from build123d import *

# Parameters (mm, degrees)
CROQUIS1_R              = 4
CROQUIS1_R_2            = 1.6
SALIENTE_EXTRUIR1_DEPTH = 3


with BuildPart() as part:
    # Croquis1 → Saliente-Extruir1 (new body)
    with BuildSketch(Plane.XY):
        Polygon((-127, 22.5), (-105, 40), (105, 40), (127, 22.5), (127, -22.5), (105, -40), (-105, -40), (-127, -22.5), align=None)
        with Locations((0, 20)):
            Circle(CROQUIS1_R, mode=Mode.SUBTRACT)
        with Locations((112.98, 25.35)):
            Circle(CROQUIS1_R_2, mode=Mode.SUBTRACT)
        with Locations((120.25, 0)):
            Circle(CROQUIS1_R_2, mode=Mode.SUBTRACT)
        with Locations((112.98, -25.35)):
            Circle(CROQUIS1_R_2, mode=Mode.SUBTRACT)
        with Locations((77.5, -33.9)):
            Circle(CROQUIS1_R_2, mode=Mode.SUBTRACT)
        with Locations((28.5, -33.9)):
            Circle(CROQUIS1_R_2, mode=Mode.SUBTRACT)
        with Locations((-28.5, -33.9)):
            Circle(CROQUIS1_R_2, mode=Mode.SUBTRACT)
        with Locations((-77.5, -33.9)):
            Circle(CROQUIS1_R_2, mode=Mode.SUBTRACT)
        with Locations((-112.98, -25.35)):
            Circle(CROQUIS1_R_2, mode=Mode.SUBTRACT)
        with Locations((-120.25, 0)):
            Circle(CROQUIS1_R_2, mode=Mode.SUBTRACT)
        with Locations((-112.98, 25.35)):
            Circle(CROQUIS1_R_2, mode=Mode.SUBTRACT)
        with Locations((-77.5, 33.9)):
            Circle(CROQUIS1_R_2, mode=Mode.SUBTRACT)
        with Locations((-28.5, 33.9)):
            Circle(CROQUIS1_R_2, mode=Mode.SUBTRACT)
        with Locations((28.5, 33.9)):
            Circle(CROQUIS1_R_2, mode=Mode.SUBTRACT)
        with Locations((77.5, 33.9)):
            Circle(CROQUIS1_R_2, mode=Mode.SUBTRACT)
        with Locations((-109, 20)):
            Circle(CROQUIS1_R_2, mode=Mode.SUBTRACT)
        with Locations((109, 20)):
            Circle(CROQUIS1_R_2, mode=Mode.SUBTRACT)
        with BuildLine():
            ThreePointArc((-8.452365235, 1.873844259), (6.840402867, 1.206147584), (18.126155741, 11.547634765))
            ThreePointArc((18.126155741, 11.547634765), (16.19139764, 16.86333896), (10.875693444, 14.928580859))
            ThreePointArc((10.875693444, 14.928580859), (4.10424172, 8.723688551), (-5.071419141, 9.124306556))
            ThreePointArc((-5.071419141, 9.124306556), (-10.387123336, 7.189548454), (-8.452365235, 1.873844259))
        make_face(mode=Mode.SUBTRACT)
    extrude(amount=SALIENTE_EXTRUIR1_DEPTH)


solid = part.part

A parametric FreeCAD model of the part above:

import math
import FreeCAD as App
import Part
import Sketcher

V = App.Vector
Q = App.Units.Quantity

doc = App.newDocument("Part")
body = doc.addObject("PartDesign::Body", "Body")

# Sketch on XY plane
sketch1 = body.newObject("Sketcher::SketchObject", "Sketch")
sketch1.AttachmentSupport = (doc.getObject("XY_Plane"), [""])
sketch1.MapMode = "FlatFace"
sketch1.addGeometry([
    Part.LineSegment(V(-105, 40, 0), V(-127, 22.5, 0)),  # 0
    Part.LineSegment(V(-127, 22.5, 0), V(-127, -22.5, 0)),  # 1
    Part.LineSegment(V(-127, -22.5, 0), V(-105, -40, 0)),  # 2
    Part.LineSegment(V(-105, -40, 0), V(105, -40, 0)),  # 3
    Part.LineSegment(V(105, -40, 0), V(127, -22.5, 0)),  # 4
    Part.LineSegment(V(127, -22.5, 0), V(127, 22.5, 0)),  # 5
    Part.LineSegment(V(127, 22.5, 0), V(105, 40, 0)),  # 6
    Part.LineSegment(V(105, 40, 0), V(-105, 40, 0)),  # 7
    Part.Circle(V(77.5, -33.9, 0), V(0, 0, 1), 1.6),  # 8
    Part.Circle(V(113, -25.4, 0), V(0, 0, 1), 1.6),  # 9
    Part.Circle(V(28.5, -33.9, 0), V(0, 0, 1), 1.6),  # 10
    Part.Circle(V(-28.5, -33.9, 0), V(0, 0, 1), 1.6),  # 11
    Part.Circle(V(-77.5, -33.9, 0), V(0, 0, 1), 1.6),  # 12
    Part.Circle(V(-113, -25.4, 0), V(0, 0, 1), 1.6),  # 13
    Part.Circle(V(120.2, 0, 0), V(0, 0, 1), 1.6),  # 14
    Part.ArcOfCircle(Part.Circle(V(-6.8, 5.5, 0), V(0, 0, 1), 4), math.radians(65), math.radians(245)),  # 15
    Part.ArcOfCircle(Part.Circle(V(0, 20, 0), V(0, 0, 1), 12), math.radians(-115), math.radians(-25)),  # 16
    Part.ArcOfCircle(Part.Circle(V(14.5, 13.2, 0), V(0, 0, 1), 4), math.radians(-25), math.radians(155)),  # 17
    Part.ArcOfCircle(Part.Circle(V(0, 20, 0), V(0, 0, 1), 20), math.radians(-115), math.radians(-25)),  # 18
    Part.Circle(V(109, 20, 0), V(0, 0, 1), 1.6),  # 19
    Part.Circle(V(113, 25.4, 0), V(0, 0, 1), 1.6),  # 20
    Part.Circle(V(77.5, 33.9, 0), V(0, 0, 1), 1.6),  # 21
    Part.Circle(V(0, 20, 0), V(0, 0, 1), 4),  # 22
    Part.Circle(V(28.5, 33.9, 0), V(0, 0, 1), 1.6),  # 23
    Part.Circle(V(-120.2, 0, 0), V(0, 0, 1), 1.6),  # 24
    Part.Circle(V(-28.5, 33.9, 0), V(0, 0, 1), 1.6),  # 25
    Part.Circle(V(-109, 20, 0), V(0, 0, 1), 1.6),  # 26
    Part.Circle(V(-113, 25.4, 0), V(0, 0, 1), 1.6),  # 27
    Part.Circle(V(-77.5, 33.9, 0), V(0, 0, 1), 1.6),  # 28
], False)
sketch1.addConstraint([
    Sketcher.Constraint("Coincident", 0, 2, 1, 1),
    Sketcher.Constraint("Coincident", 1, 2, 2, 1),
    Sketcher.Constraint("Coincident", 2, 2, 3, 1),
    Sketcher.Constraint("Coincident", 3, 2, 4, 1),
    Sketcher.Constraint("Coincident", 4, 2, 5, 1),
    Sketcher.Constraint("Coincident", 5, 2, 6, 1),
    Sketcher.Constraint("Coincident", 6, 2, 7, 1),
    Sketcher.Constraint("Coincident", 7, 2, 0, 1),
    Sketcher.Constraint("Tangent", 15, 1, 16, 1),
    Sketcher.Constraint("Tangent", 16, 2, 17, 2),
    Sketcher.Constraint("Tangent", 17, 1, 18, 2),
    Sketcher.Constraint("Tangent", 18, 1, 15, 2),
    Sketcher.Constraint("Vertical", 1),
    Sketcher.Constraint("Horizontal", 3),
    Sketcher.Constraint("Vertical", 5),
    Sketcher.Constraint("Horizontal", 7),
    Sketcher.Constraint("Coincident", 18, 3, 16, 3),
    Sketcher.Constraint("Coincident", 22, 3, 16, 3),
    Sketcher.Constraint("Equal", 8, 9),
    Sketcher.Constraint("Equal", 9, 10),
    Sketcher.Constraint("Equal", 10, 11),
    Sketcher.Constraint("Equal", 11, 12),
    Sketcher.Constraint("Equal", 12, 13),
    Sketcher.Constraint("Equal", 13, 14),
    Sketcher.Constraint("Equal", 14, 19),
    Sketcher.Constraint("Equal", 19, 20),
    Sketcher.Constraint("Equal", 20, 21),
    Sketcher.Constraint("Equal", 17, 22),
    Sketcher.Constraint("Equal", 21, 23),
    Sketcher.Constraint("Equal", 23, 24),
    Sketcher.Constraint("Equal", 24, 25),
    Sketcher.Constraint("Equal", 25, 26),
    Sketcher.Constraint("Equal", 26, 27),
    Sketcher.Constraint("Equal", 27, 28),
    Sketcher.Constraint("Symmetric", 13, 3, 20, 3, -1, 1),
    Sketcher.Constraint("Symmetric", 12, 3, 21, 3, -1, 1),
    Sketcher.Constraint("Symmetric", 11, 3, 23, 3, -1, 1),
    Sketcher.Constraint("Symmetric", 14, 3, 24, 3, -1, 1),
    Sketcher.Constraint("Symmetric", 10, 3, 25, 3, -1, 1),
    Sketcher.Constraint("Symmetric", 9, 3, 27, 3, -1, 1),
    Sketcher.Constraint("Symmetric", 8, 3, 28, 3, -1, 1),
    Sketcher.Constraint("Symmetric", 0, 2, 4, 2, -1, 1),
    Sketcher.Constraint("Symmetric", 2, 2, 6, 2, -1, 1),
    Sketcher.Constraint("Symmetric", 10, 3, 11, 3, -2),
    Sketcher.Constraint("Symmetric", 8, 3, 12, 3, -2),
    Sketcher.Constraint("Symmetric", 9, 3, 13, 3, -2),
    Sketcher.Constraint("Symmetric", 19, 3, 26, 3, -2),
    Sketcher.Constraint("PointOnObject", 14, 3, -1),
    Sketcher.Constraint("PointOnObject", 16, 3, -2),
    Sketcher.Constraint("Parallel", 0, 4),
    Sketcher.Constraint("Parallel", 2, 6),
    Sketcher.Constraint("Horizontal", 8, 3, 10, 3),
    Sketcher.Constraint("Horizontal", 18, 3, 19, 3),
    Sketcher.Constraint("Horizontal", 1, 2, 4, 2),
    Sketcher.Constraint("Vertical", 3, 2, 6, 2),
    Sketcher.Constraint("Diameter", 22, Q("8 mm")),
    Sketcher.Constraint("Radius", 16, Q("12 mm")),
    Sketcher.Constraint("Diameter", 8, Q("3.2 mm")),
    Sketcher.Constraint("DistanceX", 3, 1, 3, 2, Q("210 mm")),
    Sketcher.Constraint("DistanceY", 1, 2, 1, 1, Q("45 mm")),
    Sketcher.Constraint("DistanceY", -1, 1, 16, 3, Q("20 mm")),
    Sketcher.Constraint("DistanceX", -1, 1, 19, 3, Q("109 mm")),
    Sketcher.Constraint("DistanceX", 0, 2, -1, 1, Q("127 mm")),
    Sketcher.Constraint("DistanceY", 2, 2, -1, 1, Q("40 mm")),
    Sketcher.Constraint("DistanceX", 10, 3, 8, 3, Q("49 mm")),
    Sketcher.Constraint("DistanceX", 11, 3, 10, 3, Q("57 mm")),
    Sketcher.Constraint("DistanceY", 8, 3, -1, 1, Q("33.9 mm")),
    Sketcher.Constraint("DistanceY", 9, 3, 20, 3, Q("50.7 mm")),
    Sketcher.Constraint("DistanceX", -1, 1, 9, 3, Q("112.98 mm")),
    Sketcher.Constraint("DistanceX", -1, 1, 14, 3, Q("120.25 mm")),
    Sketcher.Constraint("DistanceY", 15, 1, 17, 3, Q("4.113801 mm")),
    Sketcher.Constraint("DistanceX", 15, 1, -1, 1, Q("5.071419 mm")),
])
pad1 = body.newObject("PartDesign::Pad", "Pad")
pad1.Profile = sketch1
pad1.Length = 3

doc.recompute()
